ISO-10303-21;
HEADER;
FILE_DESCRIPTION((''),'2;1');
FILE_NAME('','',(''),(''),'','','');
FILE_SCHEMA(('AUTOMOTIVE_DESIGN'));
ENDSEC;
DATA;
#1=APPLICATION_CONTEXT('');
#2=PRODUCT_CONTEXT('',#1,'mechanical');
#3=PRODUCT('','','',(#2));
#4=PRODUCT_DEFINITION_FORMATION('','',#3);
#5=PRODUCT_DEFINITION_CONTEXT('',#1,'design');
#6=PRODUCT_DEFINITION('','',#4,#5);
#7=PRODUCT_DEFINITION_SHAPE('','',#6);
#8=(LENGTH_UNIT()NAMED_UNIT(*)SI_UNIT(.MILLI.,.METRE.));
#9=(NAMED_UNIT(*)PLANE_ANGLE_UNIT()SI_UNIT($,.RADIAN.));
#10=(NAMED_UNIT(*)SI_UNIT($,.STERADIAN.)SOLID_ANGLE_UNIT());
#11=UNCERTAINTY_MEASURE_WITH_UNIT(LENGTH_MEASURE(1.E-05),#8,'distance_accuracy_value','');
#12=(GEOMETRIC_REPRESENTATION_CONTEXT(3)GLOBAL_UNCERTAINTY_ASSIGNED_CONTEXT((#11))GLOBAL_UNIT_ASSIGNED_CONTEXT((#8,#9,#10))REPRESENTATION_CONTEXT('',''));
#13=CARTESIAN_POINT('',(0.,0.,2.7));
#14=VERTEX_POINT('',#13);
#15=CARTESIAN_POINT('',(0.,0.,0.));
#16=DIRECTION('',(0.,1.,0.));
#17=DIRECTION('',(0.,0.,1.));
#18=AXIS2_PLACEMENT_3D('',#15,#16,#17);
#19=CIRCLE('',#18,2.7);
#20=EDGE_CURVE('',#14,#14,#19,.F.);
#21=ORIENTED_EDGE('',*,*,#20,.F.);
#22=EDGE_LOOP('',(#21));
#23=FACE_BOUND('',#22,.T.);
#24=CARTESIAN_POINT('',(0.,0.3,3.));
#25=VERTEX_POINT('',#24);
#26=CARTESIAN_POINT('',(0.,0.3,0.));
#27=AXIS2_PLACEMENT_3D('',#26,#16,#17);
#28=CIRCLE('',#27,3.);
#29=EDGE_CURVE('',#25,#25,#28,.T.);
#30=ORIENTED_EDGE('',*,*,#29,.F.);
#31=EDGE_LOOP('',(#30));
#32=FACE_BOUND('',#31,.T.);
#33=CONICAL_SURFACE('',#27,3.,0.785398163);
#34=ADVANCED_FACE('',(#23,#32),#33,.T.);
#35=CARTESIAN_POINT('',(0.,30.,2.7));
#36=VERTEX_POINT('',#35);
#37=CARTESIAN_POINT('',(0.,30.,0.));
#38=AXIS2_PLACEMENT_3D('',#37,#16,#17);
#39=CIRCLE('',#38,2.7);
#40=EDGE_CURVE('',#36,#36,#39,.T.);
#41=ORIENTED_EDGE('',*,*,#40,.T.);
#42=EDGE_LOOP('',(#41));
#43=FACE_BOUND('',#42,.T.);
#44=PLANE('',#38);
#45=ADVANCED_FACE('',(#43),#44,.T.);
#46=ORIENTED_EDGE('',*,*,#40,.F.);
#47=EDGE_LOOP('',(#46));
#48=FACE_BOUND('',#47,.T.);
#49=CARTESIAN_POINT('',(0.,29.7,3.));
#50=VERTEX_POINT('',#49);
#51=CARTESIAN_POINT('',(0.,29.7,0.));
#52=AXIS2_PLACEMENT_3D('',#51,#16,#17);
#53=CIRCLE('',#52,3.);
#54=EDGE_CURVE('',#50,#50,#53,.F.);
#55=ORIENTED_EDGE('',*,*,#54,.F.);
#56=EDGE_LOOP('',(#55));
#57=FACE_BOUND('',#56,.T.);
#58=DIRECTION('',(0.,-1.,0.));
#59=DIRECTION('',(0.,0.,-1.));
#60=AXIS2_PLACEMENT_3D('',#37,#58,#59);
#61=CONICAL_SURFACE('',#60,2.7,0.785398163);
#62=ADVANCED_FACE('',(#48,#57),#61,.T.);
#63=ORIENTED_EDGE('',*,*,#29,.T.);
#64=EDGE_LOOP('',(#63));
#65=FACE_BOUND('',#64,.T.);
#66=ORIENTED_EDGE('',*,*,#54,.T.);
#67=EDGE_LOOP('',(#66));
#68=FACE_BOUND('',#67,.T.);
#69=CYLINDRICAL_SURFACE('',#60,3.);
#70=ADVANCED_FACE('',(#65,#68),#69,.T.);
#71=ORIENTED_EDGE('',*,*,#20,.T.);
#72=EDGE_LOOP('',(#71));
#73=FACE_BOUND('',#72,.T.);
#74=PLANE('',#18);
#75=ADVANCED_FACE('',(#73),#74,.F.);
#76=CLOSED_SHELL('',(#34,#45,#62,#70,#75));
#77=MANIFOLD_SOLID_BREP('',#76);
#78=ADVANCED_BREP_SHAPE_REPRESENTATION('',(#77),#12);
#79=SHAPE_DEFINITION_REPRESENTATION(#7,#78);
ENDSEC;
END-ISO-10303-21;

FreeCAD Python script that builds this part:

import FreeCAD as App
import Part
import Sketcher
Q = App.Units.Quantity


def edges_at(feature, points):
    """Names of the edges that pass closest to the given points."""
    edges = feature.Shape.Edges
    near = lambda p: min(range(len(edges)), key=lambda i: edges[i].distToShape(Part.Vertex(*p))[0])
    return sorted({f"Edge{near(p) + 1}" for p in points})

doc = App.newDocument("Part")
body = doc.addObject("PartDesign::Body", "Body")

# Sketch on XZ plane
sketch1 = body.newObject("Sketcher::SketchObject", "Sketch")
sketch1.AttachmentSupport = (doc.getObject("XZ_Plane"), [""])
sketch1.MapMode = "FlatFace"
sketch1.addGeometry(Part.Circle(App.Vector(0, 0, 0), App.Vector(0, 0, 1), 3), False)
sketch1.addConstraint(Sketcher.Constraint("Coincident", 0, 3, -1, 1))
sketch1.addConstraint(Sketcher.Constraint("Diameter", 0, Q("6 mm")))
pad1 = body.newObject("PartDesign::Pad", "Pad")
pad1.Profile = sketch1
pad1.Length = 30
pad1.Reversed = True
doc.recompute()

chamfer = body.newObject("PartDesign::Chamfer", "Chamfer")
chamfer.Base = (pad1, edges_at(pad1, [(0, 0, -3), (0, 30, -3)]))
chamfer.Size = 0.3

doc.recompute()
